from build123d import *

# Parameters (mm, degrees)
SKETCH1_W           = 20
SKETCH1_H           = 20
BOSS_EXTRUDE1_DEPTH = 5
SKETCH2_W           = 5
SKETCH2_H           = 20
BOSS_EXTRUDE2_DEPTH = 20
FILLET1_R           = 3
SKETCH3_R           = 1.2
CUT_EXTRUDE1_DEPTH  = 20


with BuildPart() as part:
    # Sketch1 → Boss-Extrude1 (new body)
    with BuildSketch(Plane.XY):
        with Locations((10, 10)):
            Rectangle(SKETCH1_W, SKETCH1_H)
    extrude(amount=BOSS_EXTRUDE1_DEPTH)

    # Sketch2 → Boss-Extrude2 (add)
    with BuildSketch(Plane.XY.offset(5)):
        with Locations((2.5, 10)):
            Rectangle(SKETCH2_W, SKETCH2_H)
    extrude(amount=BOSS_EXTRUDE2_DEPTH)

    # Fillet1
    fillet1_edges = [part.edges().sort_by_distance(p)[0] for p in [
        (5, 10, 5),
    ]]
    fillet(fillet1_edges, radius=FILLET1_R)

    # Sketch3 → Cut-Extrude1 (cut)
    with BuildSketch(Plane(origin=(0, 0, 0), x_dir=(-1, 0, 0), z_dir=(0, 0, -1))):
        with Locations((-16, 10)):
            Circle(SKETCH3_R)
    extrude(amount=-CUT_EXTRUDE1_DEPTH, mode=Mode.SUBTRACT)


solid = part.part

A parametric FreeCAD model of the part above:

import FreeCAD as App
import Part
import Sketcher
from FreeCAD import Vector
Q = App.Units.Quantity


def edges_at(feature, points):
    """Names of the edges that pass closest to the given points."""
    edges = feature.Shape.Edges
    near = lambda p: min(range(len(edges)), key=lambda i: edges[i].distToShape(Part.Vertex(*p))[0])
    return sorted({f"Edge{near(p) + 1}" for p in points})

doc = App.newDocument("Part")
params = doc.addObject("Spreadsheet::Sheet", "Params")
for row, (alias, value) in enumerate([
    ("sketch1_width", "20 mm"),
    ("pad1_length", "5 mm"),
    ("sketch2_width", "5 mm"),
    ("sketch2_height", "20 mm"),
    ("pad2_length", "20 mm"),
    ("fillet_radius", "3 mm"),
    ("sketch3_diameter", "2.4 mm"),
    ("pocket1_length", "20 mm"),
], start=1):
    params.set(f"A{row}", alias)
    params.set(f"B{row}", "=" + value)
    params.setAlias(f"B{row}", alias)

body = doc.addObject("PartDesign::Body", "Body")

sketch1 = body.newObject("Sketcher::SketchObject", "Sketch")
sketch1.AttachmentSupport = (doc.getObject("XY_Plane"), [""])
sketch1.MapMode = "FlatFace"
sketch1.addGeometry([
    Part.LineSegment(Vector(0, 20, 0), Vector(0, 0, 0)),
    Part.LineSegment(Vector(0, 0, 0), Vector(20, 0, 0)),
    Part.LineSegment(Vector(20, 0, 0), Vector(20, 20, 0)),
    Part.LineSegment(Vector(20, 20, 0), Vector(0, 20, 0)),
], False)
sketch1.addConstraint([
    Sketcher.Constraint("Coincident", 0, 2, 1, 1),
    Sketcher.Constraint("Coincident", 1, 2, 2, 1),
    Sketcher.Constraint("Coincident", 2, 2, 3, 1),
    Sketcher.Constraint("Coincident", 3, 2, 0, 1),
    Sketcher.Constraint("Vertical", 0),
    Sketcher.Constraint("Horizontal", 1),
    Sketcher.Constraint("Vertical", 2),
    Sketcher.Constraint("Horizontal", 3),
    Sketcher.Constraint("Coincident", 0, 2, -1, 1),
    Sketcher.Constraint("Equal", 3, 0),
    Sketcher.Constraint("DistanceX", 1, 1, 1, 2, Q("20 mm")),
])
sketch1.setExpression("Constraints[10]", "Params.sketch1_width")
pad1 = body.newObject("PartDesign::Pad", "Pad")
pad1.Profile = sketch1
pad1.setExpression("Length", "Params.pad1_length")

sketch2 = body.newObject("Sketcher::SketchObject", "Sketch001")
sketch2.AttachmentSupport = (doc.getObject("XY_Plane"), [""])
sketch2.MapMode = "FlatFace"
sketch2.AttachmentOffset = App.Placement(Vector(0, 0, 5), App.Rotation())
sketch2.addGeometry([
    Part.LineSegment(Vector(0, 20, 0), Vector(0, 0, 0)),
    Part.LineSegment(Vector(0, 0, 0), Vector(5, 0, 0)),
    Part.LineSegment(Vector(5, 0, 0), Vector(5, 20, 0)),
    Part.LineSegment(Vector(5, 20, 0), Vector(0, 20, 0)),
], False)
sketch2.addConstraint([
    Sketcher.Constraint("Coincident", 0, 2, 1, 1),
    Sketcher.Constraint("Coincident", 1, 2, 2, 1),
    Sketcher.Constraint("Coincident", 2, 2, 3, 1),
    Sketcher.Constraint("Coincident", 3, 2, 0, 1),
    Sketcher.Constraint("Vertical", 0),
    Sketcher.Constraint("Horizontal", 1),
    Sketcher.Constraint("Vertical", 2),
    Sketcher.Constraint("Horizontal", 3),
    Sketcher.Constraint("Coincident", 0, 2, -1, 1),
    Sketcher.Constraint("DistanceX", 1, 1, 1, 2, Q("5 mm")),
    Sketcher.Constraint("DistanceY", 0, 2, 0, 1, Q("20 mm")),
])
sketch2.setExpression("Constraints[9]", "Params.sketch2_width")
sketch2.setExpression("Constraints[10]", "Params.sketch2_height")
pad2 = body.newObject("PartDesign::Pad", "Pad001")
pad2.Profile = sketch2
pad2.setExpression("Length", "Params.pad2_length")
doc.recompute()

fillet = body.newObject("PartDesign::Fillet", "Fillet")
fillet.Base = (pad2, edges_at(pad2, [(5, 10, 5)]))
fillet.setExpression("Radius", "Params.fillet_radius")

sketch3 = body.newObject("Sketcher::SketchObject", "Sketch002")
sketch3.AttachmentSupport = (doc.getObject("XY_Plane"), [""])
sketch3.MapMode = "FlatFace"
sketch3.addGeometry(Part.Circle(Vector(16, 10, 0), Vector(0, 0, 1), 1.2), False)
sketch3.addConstraint([
    Sketcher.Constraint("Diameter", 0, Q("2.4 mm")),
    Sketcher.Constraint("DistanceX", -1, 1, 0, 3, Q("16 mm")),
    Sketcher.Constraint("DistanceY", -1, 1, 0, 3, Q("10 mm")),
])
sketch3.setExpression("Constraints[0]", "Params.sketch3_diameter")
pocket1 = body.newObject("PartDesign::Pocket", "Pocket")
pocket1.Profile = sketch3
pocket1.setExpression("Length", "Params.pocket1_length")
pocket1.Reversed = True

doc.recompute()
